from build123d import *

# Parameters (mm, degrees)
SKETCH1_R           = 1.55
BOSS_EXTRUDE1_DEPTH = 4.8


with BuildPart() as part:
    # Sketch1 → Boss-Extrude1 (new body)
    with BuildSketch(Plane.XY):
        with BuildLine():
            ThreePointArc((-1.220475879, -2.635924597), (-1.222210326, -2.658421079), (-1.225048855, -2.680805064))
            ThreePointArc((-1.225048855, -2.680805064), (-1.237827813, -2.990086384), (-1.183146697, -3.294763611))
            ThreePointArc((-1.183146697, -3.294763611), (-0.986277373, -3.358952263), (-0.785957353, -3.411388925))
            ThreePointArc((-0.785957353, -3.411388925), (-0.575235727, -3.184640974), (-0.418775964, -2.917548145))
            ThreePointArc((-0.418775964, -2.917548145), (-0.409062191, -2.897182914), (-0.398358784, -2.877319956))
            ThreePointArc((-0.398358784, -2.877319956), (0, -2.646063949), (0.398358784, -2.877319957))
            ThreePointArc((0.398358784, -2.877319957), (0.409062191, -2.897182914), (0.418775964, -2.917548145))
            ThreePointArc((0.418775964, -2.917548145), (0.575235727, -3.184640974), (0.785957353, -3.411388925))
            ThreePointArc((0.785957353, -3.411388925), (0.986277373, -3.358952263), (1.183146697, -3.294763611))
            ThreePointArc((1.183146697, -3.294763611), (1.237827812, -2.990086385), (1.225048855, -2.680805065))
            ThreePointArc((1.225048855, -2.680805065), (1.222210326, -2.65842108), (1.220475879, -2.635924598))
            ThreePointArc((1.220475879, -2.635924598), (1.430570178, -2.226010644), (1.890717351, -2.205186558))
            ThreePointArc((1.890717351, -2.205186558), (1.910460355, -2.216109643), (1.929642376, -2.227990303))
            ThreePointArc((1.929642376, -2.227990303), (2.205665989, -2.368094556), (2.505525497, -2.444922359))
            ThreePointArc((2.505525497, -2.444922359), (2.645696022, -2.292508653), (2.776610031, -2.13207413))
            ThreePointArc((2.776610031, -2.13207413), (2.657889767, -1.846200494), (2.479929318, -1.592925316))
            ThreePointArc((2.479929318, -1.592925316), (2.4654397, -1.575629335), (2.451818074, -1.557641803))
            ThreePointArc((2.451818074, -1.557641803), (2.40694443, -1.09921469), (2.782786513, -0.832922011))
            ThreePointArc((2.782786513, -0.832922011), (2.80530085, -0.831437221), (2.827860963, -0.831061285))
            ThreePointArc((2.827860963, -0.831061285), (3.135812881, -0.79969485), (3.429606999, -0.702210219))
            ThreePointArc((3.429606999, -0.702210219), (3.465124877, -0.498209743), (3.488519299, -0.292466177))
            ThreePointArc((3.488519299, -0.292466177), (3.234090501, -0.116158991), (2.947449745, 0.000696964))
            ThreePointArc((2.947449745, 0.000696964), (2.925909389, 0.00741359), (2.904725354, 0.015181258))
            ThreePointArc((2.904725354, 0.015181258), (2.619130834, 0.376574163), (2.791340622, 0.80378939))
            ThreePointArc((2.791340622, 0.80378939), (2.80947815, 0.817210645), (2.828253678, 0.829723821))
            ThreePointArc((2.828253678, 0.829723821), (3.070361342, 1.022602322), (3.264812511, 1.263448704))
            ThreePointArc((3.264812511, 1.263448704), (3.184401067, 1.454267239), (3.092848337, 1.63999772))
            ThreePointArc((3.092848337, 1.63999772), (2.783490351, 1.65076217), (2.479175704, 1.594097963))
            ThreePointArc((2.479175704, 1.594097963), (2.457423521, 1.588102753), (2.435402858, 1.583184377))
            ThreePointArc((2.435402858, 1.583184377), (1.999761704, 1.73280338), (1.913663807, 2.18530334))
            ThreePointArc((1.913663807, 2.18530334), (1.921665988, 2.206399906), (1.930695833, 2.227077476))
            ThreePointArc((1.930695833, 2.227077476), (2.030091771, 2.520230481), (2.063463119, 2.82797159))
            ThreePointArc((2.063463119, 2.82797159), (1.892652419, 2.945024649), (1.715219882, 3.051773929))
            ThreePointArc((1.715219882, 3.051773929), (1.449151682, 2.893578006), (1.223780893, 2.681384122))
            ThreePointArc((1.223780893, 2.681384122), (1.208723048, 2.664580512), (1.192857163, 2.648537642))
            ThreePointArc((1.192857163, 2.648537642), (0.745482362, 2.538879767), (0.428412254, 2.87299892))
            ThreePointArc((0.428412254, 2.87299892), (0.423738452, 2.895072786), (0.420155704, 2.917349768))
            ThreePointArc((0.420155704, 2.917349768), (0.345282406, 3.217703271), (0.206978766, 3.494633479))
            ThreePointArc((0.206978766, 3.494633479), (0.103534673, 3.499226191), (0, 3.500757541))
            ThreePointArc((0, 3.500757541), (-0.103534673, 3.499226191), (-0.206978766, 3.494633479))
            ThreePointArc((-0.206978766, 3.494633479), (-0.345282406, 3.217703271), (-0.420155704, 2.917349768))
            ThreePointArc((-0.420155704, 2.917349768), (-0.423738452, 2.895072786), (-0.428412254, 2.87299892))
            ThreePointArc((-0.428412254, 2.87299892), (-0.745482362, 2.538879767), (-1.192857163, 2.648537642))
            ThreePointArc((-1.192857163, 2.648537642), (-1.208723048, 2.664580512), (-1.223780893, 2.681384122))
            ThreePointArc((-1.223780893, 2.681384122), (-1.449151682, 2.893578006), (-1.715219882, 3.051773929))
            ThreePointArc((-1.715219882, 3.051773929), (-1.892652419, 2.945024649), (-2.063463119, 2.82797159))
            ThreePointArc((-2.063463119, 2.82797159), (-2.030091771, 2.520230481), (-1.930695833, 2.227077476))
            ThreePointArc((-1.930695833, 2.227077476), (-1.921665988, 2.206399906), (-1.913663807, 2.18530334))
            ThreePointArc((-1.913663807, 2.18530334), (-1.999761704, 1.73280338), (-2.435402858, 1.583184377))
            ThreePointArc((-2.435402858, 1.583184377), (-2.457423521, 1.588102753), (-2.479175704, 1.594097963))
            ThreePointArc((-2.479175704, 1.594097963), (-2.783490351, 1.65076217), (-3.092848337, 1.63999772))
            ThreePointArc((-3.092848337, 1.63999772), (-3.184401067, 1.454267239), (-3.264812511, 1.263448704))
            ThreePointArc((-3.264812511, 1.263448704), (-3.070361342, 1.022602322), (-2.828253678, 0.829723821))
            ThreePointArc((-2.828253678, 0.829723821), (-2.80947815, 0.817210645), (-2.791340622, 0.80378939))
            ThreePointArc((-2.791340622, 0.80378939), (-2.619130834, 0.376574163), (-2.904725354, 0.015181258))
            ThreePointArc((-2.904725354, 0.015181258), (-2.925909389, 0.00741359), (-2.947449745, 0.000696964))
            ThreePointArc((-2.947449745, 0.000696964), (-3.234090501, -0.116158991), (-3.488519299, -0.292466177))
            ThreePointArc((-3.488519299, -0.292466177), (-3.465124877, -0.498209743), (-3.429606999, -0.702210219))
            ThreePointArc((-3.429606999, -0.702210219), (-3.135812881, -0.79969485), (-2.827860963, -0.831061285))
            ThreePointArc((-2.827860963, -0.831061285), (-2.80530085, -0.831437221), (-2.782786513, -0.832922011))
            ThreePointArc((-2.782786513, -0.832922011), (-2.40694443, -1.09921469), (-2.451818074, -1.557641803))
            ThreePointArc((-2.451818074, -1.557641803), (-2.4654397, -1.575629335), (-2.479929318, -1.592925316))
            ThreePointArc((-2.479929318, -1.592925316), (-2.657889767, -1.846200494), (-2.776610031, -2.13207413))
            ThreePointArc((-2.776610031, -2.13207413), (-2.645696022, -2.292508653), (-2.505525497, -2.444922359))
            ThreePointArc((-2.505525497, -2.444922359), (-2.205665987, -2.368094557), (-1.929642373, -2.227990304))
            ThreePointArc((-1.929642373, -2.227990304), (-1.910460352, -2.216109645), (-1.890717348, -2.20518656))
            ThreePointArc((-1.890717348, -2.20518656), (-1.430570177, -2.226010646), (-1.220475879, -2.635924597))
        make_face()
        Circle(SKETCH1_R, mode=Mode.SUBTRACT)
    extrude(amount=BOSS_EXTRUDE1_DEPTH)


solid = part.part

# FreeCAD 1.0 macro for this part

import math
import FreeCAD as App
import Part
import Sketcher

V = App.Vector
Q = App.Units.Quantity

doc = App.newDocument("Part")
body = doc.addObject("PartDesign::Body", "Body")

# Sketch on XY plane
sketch1 = body.newObject("Sketcher::SketchObject", "Sketch")
sketch1.AttachmentSupport = (doc.getObject("XY_Plane"), [""])
sketch1.MapMode = "FlatFace"
sketch1.addGeometry([
    Part.ArcOfCircle(Part.Circle(V(-1.679, -2.612, 0), V(0, 0, 1), 0.459), math.radians(-8.64), math.radians(-3)),  # 0
    Part.ArcOfCircle(Part.Circle(V(0.176, -2.894, 0), V(0, 0, 1), 1.417), math.radians(171), math.radians(196)),  # 1
    Part.ArcOfCircle(Part.Circle(V(0, 0, 0), V(0, 0, 1), 3.501), math.radians(-109.75), math.radians(-102.97)),  # 2
    Part.ArcOfCircle(Part.Circle(V(-1.712, -2.339, 0), V(0, 0, 1), 1.417), math.radians(-49), math.radians(-24)),  # 3
    Part.ArcOfCircle(Part.Circle(V(0, -3.105, 0), V(0, 0, 1), 0.459), math.radians(150.27), math.radians(155.91)),  # 4
    Part.ArcOfCircle(Part.Circle(V(0, -3.105, 0), V(0, 0, 1), 0.459), math.radians(30), math.radians(150)),  # 5
    Part.ArcOfCircle(Part.Circle(V(0, -3.105, 0), V(0, 0, 1), 0.459), math.radians(24.09), math.radians(29.73)),  # 6
    Part.ArcOfCircle(Part.Circle(V(1.712, -2.339, 0), V(0, 0, 1), 1.417), math.radians(-156), math.radians(-131)),  # 7
    Part.ArcOfCircle(Part.Circle(V(0, 0, 0), V(0, 0, 1), 3.501), math.radians(-77.03), math.radians(-70.25)),  # 8
    Part.ArcOfCircle(Part.Circle(V(-0.176, -2.894, 0), V(0, 0, 1), 1.417), math.radians(-16), math.radians(9)),  # 9
    Part.ArcOfCircle(Part.Circle(V(1.679, -2.612, 0), V(0, 0, 1), 0.459), math.radians(-177), math.radians(-171.36)),  # 10
    Part.ArcOfCircle(Part.Circle(V(1.679, -2.612, 0), V(0, 0, 1), 0.459), math.radians(62), math.radians(183)),  # 11
    Part.ArcOfCircle(Part.Circle(V(1.679, -2.612, 0), V(0, 0, 1), 0.459), math.radians(56.82), math.radians(62.46)),  # 12
    Part.ArcOfCircle(Part.Circle(V(2.705, -1.042, 0), V(0, 0, 1), 1.417), math.radians(-123), math.radians(-98)),  # 13
    Part.ArcOfCircle(Part.Circle(V(0, 0, 0), V(0, 0, 1), 3.501), math.radians(-44.3), math.radians(-37.52)),  # 14
    Part.ArcOfCircle(Part.Circle(V(1.416, -2.529, 0), V(0, 0, 1), 1.417), math.radians(16), math.radians(41)),  # 15
    Part.ArcOfCircle(Part.Circle(V(2.824, -1.29, 0), V(0, 0, 1), 0.459), math.radians(-144.27), math.radians(-138.64)),  # 16
    Part.ArcOfCircle(Part.Circle(V(2.824, -1.29, 0), V(0, 0, 1), 0.459), math.radians(95), math.radians(216)),  # 17
    Part.ArcOfCircle(Part.Circle(V(2.824, -1.29, 0), V(0, 0, 1), 0.459), math.radians(89.55), math.radians(95.18)),  # 18
    Part.ArcOfCircle(Part.Circle(V(2.839, 0.586, 0), V(0, 0, 1), 1.417), math.radians(-90), math.radians(-65)),  # 19
    Part.ArcOfCircle(Part.Circle(V(0, 0, 0), V(0, 0, 1), 3.501), math.radians(-11.57), math.radians(-4.79)),  # 20
    Part.ArcOfCircle(Part.Circle(V(2.559, -1.362, 0), V(0, 0, 1), 1.417), math.radians(49), math.radians(74)),  # 21
    Part.ArcOfCircle(Part.Circle(V(3.073, 0.442, 0), V(0, 0, 1), 0.459), math.radians(-111.55), math.radians(-105.91)),  # 22
    Part.ArcOfCircle(Part.Circle(V(3.073, 0.442, 0), V(0, 0, 1), 0.459), math.radians(128), math.radians(248)),  # 23
    Part.ArcOfCircle(Part.Circle(V(3.073, 0.442, 0), V(0, 0, 1), 0.459), math.radians(122.27), math.radians(127.91)),  # 24
    Part.ArcOfCircle(Part.Circle(V(2.072, 2.028, 0), V(0, 0, 1), 1.417), math.radians(-58), math.radians(-33)),  # 25
    Part.ArcOfCircle(Part.Circle(V(0, 0, 0), V(0, 0, 1), 3.501), math.radians(21.16), math.radians(27.93)),  # 26
    Part.ArcOfCircle(Part.Circle(V(2.889, 0.238, 0), V(0, 0, 1), 1.417), math.radians(82), math.radians(107)),  # 27
    Part.ArcOfCircle(Part.Circle(V(2.346, 2.033, 0), V(0, 0, 1), 0.459), math.radians(-78.82), math.radians(-73.18)),  # 28
    Part.ArcOfCircle(Part.Circle(V(2.346, 2.033, 0), V(0, 0, 1), 0.459), math.radians(161), math.radians(281)),  # 29
    Part.ArcOfCircle(Part.Circle(V(2.346, 2.033, 0), V(0, 0, 1), 0.459), math.radians(155), math.radians(160.64)),  # 30
    Part.ArcOfCircle(Part.Circle(V(0.646, 2.826, 0), V(0, 0, 1), 1.417), math.radians(-25), math.radians(0)),  # 31
    Part.ArcOfCircle(Part.Circle(V(0, 0, 0), V(0, 0, 1), 3.501), math.radians(53.88), math.radians(60.66)),  # 32
    Part.ArcOfCircle(Part.Circle(V(2.302, 1.762, 0), V(0, 0, 1), 1.417), math.radians(114), math.radians(140)),  # 33
    Part.ArcOfCircle(Part.Circle(V(0.875, 2.979, 0), V(0, 0, 1), 0.459), math.radians(-46.09), math.radians(-40.45)),  # 34
    Part.ArcOfCircle(Part.Circle(V(0.875, 2.979, 0), V(0, 0, 1), 0.459), math.radians(-167), math.radians(-46)),  # 35
    Part.ArcOfCircle(Part.Circle(V(0.875, 2.979, 0), V(0, 0, 1), 0.459), math.radians(-172.27), math.radians(-166.64)),  # 36
    Part.ArcOfCircle(Part.Circle(V(-0.984, 2.727, 0), V(0, 0, 1), 1.417), math.radians(8), math.radians(33)),  # 37
    Part.ArcOfCircle(Part.Circle(V(0, 0, 0), V(0, 0, 1), 3.501), math.radians(86.61), math.radians(90)),  # 38
    Part.ArcOfCircle(Part.Circle(V(0, 0, 0), V(0, 0, 1), 3.501), math.radians(90), math.radians(93.39)),  # 39
    Part.ArcOfCircle(Part.Circle(V(0.984, 2.727, 0), V(0, 0, 1), 1.417), math.radians(147), math.radians(172)),  # 40
    Part.ArcOfCircle(Part.Circle(V(-0.875, 2.979, 0), V(0, 0, 1), 0.459), math.radians(-13.36), math.radians(-7.73)),  # 41
    Part.ArcOfCircle(Part.Circle(V(-0.875, 2.979, 0), V(0, 0, 1), 0.459), math.radians(-134), math.radians(-13)),  # 42
    Part.ArcOfCircle(Part.Circle(V(-0.875, 2.979, 0), V(0, 0, 1), 0.459), math.radians(-139.55), math.radians(-133.91)),  # 43
    Part.ArcOfCircle(Part.Circle(V(-2.302, 1.762, 0), V(0, 0, 1), 1.417), math.radians(40), math.radians(66)),  # 44
    Part.ArcOfCircle(Part.Circle(V(0, 0, 0), V(0, 0, 1), 3.501), math.radians(119.34), math.radians(126.12)),  # 45
    Part.ArcOfCircle(Part.Circle(V(-0.646, 2.826, 0), V(0, 0, 1), 1.417), math.radians(180), math.radians(205)),  # 46
    Part.ArcOfCircle(Part.Circle(V(-2.346, 2.033, 0), V(0, 0, 1), 0.459), math.radians(19.36), math.radians(25)),  # 47
    Part.ArcOfCircle(Part.Circle(V(-2.346, 2.033, 0), V(0, 0, 1), 0.459), math.radians(-101), math.radians(19)),  # 48
    Part.ArcOfCircle(Part.Circle(V(-2.346, 2.033, 0), V(0, 0, 1), 0.459), math.radians(-106.82), math.radians(-101.18)),  # 49
    Part.ArcOfCircle(Part.Circle(V(-2.889, 0.238, 0), V(0, 0, 1), 1.417), math.radians(73), math.radians(98)),  # 50
    Part.ArcOfCircle(Part.Circle(V(0, 0, 0), V(0, 0, 1), 3.501), math.radians(152.07), math.radians(158.84)),  # 51
    Part.ArcOfCircle(Part.Circle(V(-2.072, 2.028, 0), V(0, 0, 1), 1.417), math.radians(-147), math.radians(-122)),  # 52
    Part.ArcOfCircle(Part.Circle(V(-3.073, 0.442, 0), V(0, 0, 1), 0.459), math.radians(52.09), math.radians(57.73)),  # 53
    Part.ArcOfCircle(Part.Circle(V(-3.073, 0.442, 0), V(0, 0, 1), 0.459), math.radians(-68), math.radians(52)),  # 54
    Part.ArcOfCircle(Part.Circle(V(-3.073, 0.442, 0), V(0, 0, 1), 0.459), math.radians(-74.09), math.radians(-68.45)),  # 55
    Part.ArcOfCircle(Part.Circle(V(-2.559, -1.362, 0), V(0, 0, 1), 1.417), math.radians(106), math.radians(131)),  # 56
    Part.ArcOfCircle(Part.Circle(V(0, 0, 0), V(0, 0, 1), 3.501), math.radians(-175.21), math.radians(-168.43)),  # 57
    Part.ArcOfCircle(Part.Circle(V(-2.839, 0.586, 0), V(0, 0, 1), 1.417), math.radians(-115), math.radians(-90)),  # 58
    Part.ArcOfCircle(Part.Circle(V(-2.824, -1.29, 0), V(0, 0, 1), 0.459), math.radians(84.82), math.radians(90.45)),  # 59
    Part.ArcOfCircle(Part.Circle(V(-2.824, -1.29, 0), V(0, 0, 1), 0.459), math.radians(-36), math.radians(85)),  # 60
    Part.ArcOfCircle(Part.Circle(V(-2.824, -1.29, 0), V(0, 0, 1), 0.459), math.radians(-41.36), math.radians(-35.73)),  # 61
    Part.ArcOfCircle(Part.Circle(V(-1.416, -2.529, 0), V(0, 0, 1), 1.417), math.radians(139), math.radians(164)),  # 62
    Part.ArcOfCircle(Part.Circle(V(0, 0, 0), V(0, 0, 1), 3.501), math.radians(-142.48), math.radians(-135.7)),  # 63
    Part.ArcOfCircle(Part.Circle(V(-2.705, -1.042, 0), V(0, 0, 1), 1.417), math.radians(-82), math.radians(-57)),  # 64
    Part.ArcOfCircle(Part.Circle(V(-1.679, -2.612, 0), V(0, 0, 1), 0.459), math.radians(117.54), math.radians(123.18)),  # 65
    Part.ArcOfCircle(Part.Circle(V(-1.679, -2.612, 0), V(0, 0, 1), 0.459), math.radians(-3), math.radians(118)),  # 66
    Part.Circle(V(0, 0, 0), V(0, 0, 1), 1.55),  # 67
], False)
sketch1.addConstraint([
    Sketcher.Constraint("Tangent", 0, 1, 1, 1),
    Sketcher.Constraint("Coincident", 1, 2, 2, 1),
    Sketcher.Constraint("Coincident", 2, 2, 3, 1),
    Sketcher.Constraint("Tangent", 3, 2, 4, 2),
    Sketcher.Constraint("Tangent", 4, 1, 5, 2),
    Sketcher.Constraint("Tangent", 5, 1, 6, 2),
    Sketcher.Constraint("Tangent", 6, 1, 7, 1),
    Sketcher.Constraint("Coincident", 7, 2, 8, 1),
    Sketcher.Constraint("Coincident", 8, 2, 9, 1),
    Sketcher.Constraint("Tangent", 9, 2, 10, 2),
    Sketcher.Constraint("Tangent", 10, 1, 11, 2),
    Sketcher.Constraint("Tangent", 11, 1, 12, 2),
    Sketcher.Constraint("Tangent", 12, 1, 13, 1),
    Sketcher.Constraint("Coincident", 13, 2, 14, 1),
    Sketcher.Constraint("Coincident", 14, 2, 15, 1),
    Sketcher.Constraint("Tangent", 15, 2, 16, 2),
    Sketcher.Constraint("Tangent", 16, 1, 17, 2),
    Sketcher.Constraint("Tangent", 17, 1, 18, 2),
    Sketcher.Constraint("Tangent", 18, 1, 19, 1),
    Sketcher.Constraint("Coincident", 19, 2, 20, 1),
    Sketcher.Constraint("Coincident", 20, 2, 21, 1),
    Sketcher.Constraint("Tangent", 21, 2, 22, 2),
    Sketcher.Constraint("Tangent", 22, 1, 23, 2),
    Sketcher.Constraint("Tangent", 23, 1, 24, 2),
    Sketcher.Constraint("Tangent", 24, 1, 25, 1),
    Sketcher.Constraint("Coincident", 25, 2, 26, 1),
    Sketcher.Constraint("Coincident", 26, 2, 27, 1),
    Sketcher.Constraint("Tangent", 27, 2, 28, 2),
    Sketcher.Constraint("Tangent", 28, 1, 29, 2),
    Sketcher.Constraint("Tangent", 29, 1, 30, 2),
    Sketcher.Constraint("Tangent", 30, 1, 31, 1),
    Sketcher.Constraint("Coincident", 31, 2, 32, 1),
    Sketcher.Constraint("Coincident", 32, 2, 33, 1),
    Sketcher.Constraint("Tangent", 33, 2, 34, 2),
    Sketcher.Constraint("Tangent", 34, 1, 35, 2),
    Sketcher.Constraint("Tangent", 35, 1, 36, 2),
    Sketcher.Constraint("Tangent", 36, 1, 37, 1),
    Sketcher.Constraint("Coincident", 37, 2, 38, 1),
    Sketcher.Constraint("Tangent", 38, 2, 39, 1),
    Sketcher.Constraint("Coincident", 39, 2, 40, 1),
    Sketcher.Constraint("Tangent", 40, 2, 41, 2),
    Sketcher.Constraint("Tangent", 41, 1, 42, 2),
    Sketcher.Constraint("Tangent", 42, 1, 43, 2),
    Sketcher.Constraint("Tangent", 43, 1, 44, 1),
    Sketcher.Constraint("Coincident", 44, 2, 45, 1),
    Sketcher.Constraint("Coincident", 45, 2, 46, 1),
    Sketcher.Constraint("Tangent", 46, 2, 47, 2),
    Sketcher.Constraint("Tangent", 47, 1, 48, 2),
    Sketcher.Constraint("Tangent", 48, 1, 49, 2),
    Sketcher.Constraint("Tangent", 49, 1, 50, 1),
    Sketcher.Constraint("Coincident", 50, 2, 51, 1),
    Sketcher.Constraint("Coincident", 51, 2, 52, 1),
    Sketcher.Constraint("Tangent", 52, 2, 53, 2),
    Sketcher.Constraint("Tangent", 53, 1, 54, 2),
    Sketcher.Constraint("Tangent", 54, 1, 55, 2),
    Sketcher.Constraint("Tangent", 55, 1, 56, 1),
    Sketcher.Constraint("Coincident", 56, 2, 57, 1),
    Sketcher.Constraint("Coincident", 57, 2, 58, 1),
    Sketcher.Constraint("Tangent", 58, 2, 59, 2),
    Sketcher.Constraint("Tangent", 59, 1, 60, 2),
    Sketcher.Constraint("Tangent", 60, 1, 61, 2),
    Sketcher.Constraint("Tangent", 61, 1, 62, 1),
    Sketcher.Constraint("Coincident", 62, 2, 63, 1),
    Sketcher.Constraint("Coincident", 63, 2, 64, 1),
    Sketcher.Constraint("Tangent", 64, 2, 65, 2),
    Sketcher.Constraint("Tangent", 65, 1, 66, 2),
    Sketcher.Constraint("Tangent", 66, 1, 0, 2),
    Sketcher.Constraint("Coincident", 2, 3, -1, 1),
    Sketcher.Constraint("Coincident", 8, 3, -1, 1),
    Sketcher.Constraint("Coincident", 14, 3, -1, 1),
    Sketcher.Constraint("Coincident", 20, 3, -1, 1),
    Sketcher.Constraint("Coincident", 26, 3, -1, 1),
    Sketcher.Constraint("Coincident", 32, 3, -1, 1),
    Sketcher.Constraint("Coincident", 38, 3, -1, 1),
    Sketcher.Constraint("Coincident", 45, 3, -1, 1),
    Sketcher.Constraint("Coincident", 51, 3, -1, 1),
    Sketcher.Constraint("Coincident", 57, 3, -1, 1),
    Sketcher.Constraint("Coincident", 63, 3, -1, 1),
    Sketcher.Constraint("Coincident", 67, 3, -1, 1),
    Sketcher.Constraint("Coincident", 6, 3, 4, 3),
    Sketcher.Constraint("Coincident", 12, 3, 10, 3),
    Sketcher.Constraint("Coincident", 18, 3, 16, 3),
    Sketcher.Constraint("Coincident", 24, 3, 22, 3),
    Sketcher.Constraint("Coincident", 30, 3, 28, 3),
    Sketcher.Constraint("Coincident", 36, 3, 34, 3),
    Sketcher.Constraint("Coincident", 43, 3, 41, 3),
    Sketcher.Constraint("Coincident", 49, 3, 47, 3),
    Sketcher.Constraint("Coincident", 55, 3, 53, 3),
    Sketcher.Constraint("Coincident", 61, 3, 59, 3),
    Sketcher.Constraint("Coincident", 65, 3, 0, 3),
    Sketcher.Constraint("Equal", 1, 3),
    Sketcher.Constraint("Equal", 0, 4),
    Sketcher.Constraint("Equal", 3, 7),
    Sketcher.Constraint("Equal", 2, 8),
    Sketcher.Constraint("Equal", 7, 9),
    Sketcher.Constraint("Equal", 6, 10),
    Sketcher.Constraint("Equal", 9, 13),
    Sketcher.Constraint("Equal", 8, 14),
    Sketcher.Constraint("Equal", 13, 15),
    Sketcher.Constraint("Equal", 12, 16),
    Sketcher.Constraint("Equal", 15, 19),
    Sketcher.Constraint("Equal", 14, 20),
    Sketcher.Constraint("Equal", 19, 21),
    Sketcher.Constraint("Equal", 18, 22),
    Sketcher.Constraint("Equal", 21, 25),
    Sketcher.Constraint("Equal", 20, 26),
    Sketcher.Constraint("Equal", 25, 27),
    Sketcher.Constraint("Equal", 24, 28),
    Sketcher.Constraint("Equal", 27, 31),
    Sketcher.Constraint("Equal", 26, 32),
    Sketcher.Constraint("Equal", 31, 33),
    Sketcher.Constraint("Equal", 30, 34),
    Sketcher.Constraint("Equal", 33, 37),
    Sketcher.Constraint("Equal", 32, 38),
    Sketcher.Constraint("Equal", 38, 39),
    Sketcher.Constraint("Equal", 37, 40),
    Sketcher.Constraint("Equal", 36, 41),
    Sketcher.Constraint("Equal", 40, 44),
    Sketcher.Constraint("Equal", 39, 45),
    Sketcher.Constraint("Equal", 44, 46),
    Sketcher.Constraint("Equal", 43, 47),
    Sketcher.Constraint("Equal", 46, 50),
    Sketcher.Constraint("Equal", 45, 51),
    Sketcher.Constraint("Equal", 50, 52),
    Sketcher.Constraint("Equal", 49, 53),
    Sketcher.Constraint("Equal", 52, 56),
    Sketcher.Constraint("Equal", 51, 57),
    Sketcher.Constraint("Equal", 56, 58),
    Sketcher.Constraint("Equal", 55, 59),
    Sketcher.Constraint("Equal", 58, 62),
    Sketcher.Constraint("Equal", 57, 63),
    Sketcher.Constraint("Equal", 62, 64),
    Sketcher.Constraint("Symmetric", 3, 3, 7, 3, -2),
    Sketcher.Constraint("Symmetric", 1, 3, 9, 3, -2),
    Sketcher.Constraint("Symmetric", 37, 3, 40, 3, -2),
    Sketcher.Constraint("Symmetric", 33, 3, 44, 3, -2),
    Sketcher.Constraint("Symmetric", 31, 3, 46, 3, -2),
    Sketcher.Constraint("Symmetric", 27, 3, 50, 3, -2),
    Sketcher.Constraint("Symmetric", 25, 3, 52, 3, -2),
    Sketcher.Constraint("Symmetric", 21, 3, 56, 3, -2),
    Sketcher.Constraint("Symmetric", 19, 3, 58, 3, -2),
    Sketcher.Constraint("Symmetric", 15, 3, 62, 3, -2),
    Sketcher.Constraint("Symmetric", 13, 3, 64, 3, -2),
    Sketcher.Constraint("PointOnObject", 38, 2, -2),
    Sketcher.Constraint("Horizontal", 4, 1, 5, 1),
    Sketcher.Constraint("Horizontal", 35, 1, 41, 1),
    Sketcher.Constraint("Horizontal", 34, 1, 42, 1),
    Sketcher.Constraint("Horizontal", 29, 1, 47, 1),
    Sketcher.Constraint("Horizontal", 28, 1, 48, 1),
    Sketcher.Constraint("Horizontal", 23, 1, 53, 1),
    Sketcher.Constraint("Horizontal", 22, 1, 54, 1),
    Sketcher.Constraint("Horizontal", 17, 1, 59, 1),
    Sketcher.Constraint("Horizontal", 16, 1, 60, 1),
    Sketcher.Constraint("Horizontal", 11, 1, 65, 1),
    Sketcher.Constraint("Horizontal", 10, 1, 66, 1),
    Sketcher.Constraint("Diameter", 67, Q("3.1 mm")),
    Sketcher.Constraint("Radius", 0, Q("0.458732 mm")),
    Sketcher.Constraint("DistanceY", -1, 1, 35, 1, Q("2.872999 mm")),
    Sketcher.Constraint("Radius", 1, Q("1.417073 mm")),
    Sketcher.Constraint("Radius", 2, Q("3.500757 mm")),
    Sketcher.Constraint("DistanceY", 21, 3, -1, 1, Q("1.362099 mm")),
    Sketcher.Constraint("DistanceX", 0, 3, -1, 1, Q("1.678579 mm")),
    Sketcher.Constraint("DistanceY", 0, 3, -1, 1, Q("2.611921 mm")),
    Sketcher.Constraint("DistanceX", 3, 3, -1, 1, Q("1.712421 mm")),
    Sketcher.Constraint("DistanceY", 3, 3, -1, 1, Q("2.339119 mm")),
    Sketcher.Constraint("DistanceX", -1, 1, 16, 3, Q("2.824222 mm")),
    Sketcher.Constraint("DistanceY", 16, 3, -1, 1, Q("1.289779 mm")),
    Sketcher.Constraint("DistanceY", -1, 1, 22, 3, Q("0.441858 mm")),
    Sketcher.Constraint("DistanceY", -1, 1, 25, 3, Q("2.027882 mm")),
    Sketcher.Constraint("DistanceX", -1, 1, 28, 3, Q("2.346448 mm")),
    Sketcher.Constraint("DistanceY", -1, 1, 28, 3, Q("2.033209 mm")),
    Sketcher.Constraint("DistanceX", -1, 1, 31, 3, Q("0.646391 mm")),
    Sketcher.Constraint("DistanceX", -1, 1, 33, 3, Q("2.302062 mm")),
    Sketcher.Constraint("DistanceY", -1, 1, 34, 3, Q("2.97903 mm")),
    Sketcher.Constraint("DistanceX", -1, 1, 36, 3, Q("0.874722 mm")),
    Sketcher.Constraint("DistanceX", 37, 3, -1, 1, Q("0.984049 mm")),
    Sketcher.Constraint("DistanceX", 0, 1, -1, 1, Q("1.225049 mm")),
    Sketcher.Constraint("DistanceX", 4, 1, -1, 1, Q("0.398359 mm")),
    Sketcher.Constraint("DistanceY", 12, 1, -1, 1, Q("2.22799 mm")),
    Sketcher.Constraint("DistanceX", -1, 1, 14, 2, Q("2.77661 mm")),
    Sketcher.Constraint("DistanceX", -1, 1, 16, 1, Q("2.451818 mm")),
    Sketcher.Constraint("DistanceX", -1, 1, 18, 1, Q("2.827861 mm")),
    Sketcher.Constraint("DistanceX", -1, 1, 20, 2, Q("3.488519 mm")),
    Sketcher.Constraint("DistanceY", -1, 1, 22, 1, Q("0.015181 mm")),
    Sketcher.Constraint("DistanceX", -1, 1, 23, 1, Q("2.791341 mm")),
    Sketcher.Constraint("DistanceX", -1, 1, 26, 2, Q("3.092848 mm")),
    Sketcher.Constraint("DistanceX", -1, 1, 10, 1, Q("1.220476 mm")),
    Sketcher.Constraint("DistanceX", -1, 1, 11, 1, Q("1.890717 mm")),
    Sketcher.Constraint("DistanceX", -1, 1, 17, 1, Q("2.782787 mm")),
    Sketcher.Constraint("DistanceX", -1, 1, 28, 1, Q("2.435403 mm")),
    Sketcher.Constraint("DistanceX", -1, 1, 29, 1, Q("1.913664 mm")),
    Sketcher.Constraint("DistanceX", -1, 1, 34, 1, Q("1.192857 mm")),
])
pad1 = body.newObject("PartDesign::Pad", "Pad")
pad1.Profile = sketch1
pad1.Length = 4.8

doc.recompute()
